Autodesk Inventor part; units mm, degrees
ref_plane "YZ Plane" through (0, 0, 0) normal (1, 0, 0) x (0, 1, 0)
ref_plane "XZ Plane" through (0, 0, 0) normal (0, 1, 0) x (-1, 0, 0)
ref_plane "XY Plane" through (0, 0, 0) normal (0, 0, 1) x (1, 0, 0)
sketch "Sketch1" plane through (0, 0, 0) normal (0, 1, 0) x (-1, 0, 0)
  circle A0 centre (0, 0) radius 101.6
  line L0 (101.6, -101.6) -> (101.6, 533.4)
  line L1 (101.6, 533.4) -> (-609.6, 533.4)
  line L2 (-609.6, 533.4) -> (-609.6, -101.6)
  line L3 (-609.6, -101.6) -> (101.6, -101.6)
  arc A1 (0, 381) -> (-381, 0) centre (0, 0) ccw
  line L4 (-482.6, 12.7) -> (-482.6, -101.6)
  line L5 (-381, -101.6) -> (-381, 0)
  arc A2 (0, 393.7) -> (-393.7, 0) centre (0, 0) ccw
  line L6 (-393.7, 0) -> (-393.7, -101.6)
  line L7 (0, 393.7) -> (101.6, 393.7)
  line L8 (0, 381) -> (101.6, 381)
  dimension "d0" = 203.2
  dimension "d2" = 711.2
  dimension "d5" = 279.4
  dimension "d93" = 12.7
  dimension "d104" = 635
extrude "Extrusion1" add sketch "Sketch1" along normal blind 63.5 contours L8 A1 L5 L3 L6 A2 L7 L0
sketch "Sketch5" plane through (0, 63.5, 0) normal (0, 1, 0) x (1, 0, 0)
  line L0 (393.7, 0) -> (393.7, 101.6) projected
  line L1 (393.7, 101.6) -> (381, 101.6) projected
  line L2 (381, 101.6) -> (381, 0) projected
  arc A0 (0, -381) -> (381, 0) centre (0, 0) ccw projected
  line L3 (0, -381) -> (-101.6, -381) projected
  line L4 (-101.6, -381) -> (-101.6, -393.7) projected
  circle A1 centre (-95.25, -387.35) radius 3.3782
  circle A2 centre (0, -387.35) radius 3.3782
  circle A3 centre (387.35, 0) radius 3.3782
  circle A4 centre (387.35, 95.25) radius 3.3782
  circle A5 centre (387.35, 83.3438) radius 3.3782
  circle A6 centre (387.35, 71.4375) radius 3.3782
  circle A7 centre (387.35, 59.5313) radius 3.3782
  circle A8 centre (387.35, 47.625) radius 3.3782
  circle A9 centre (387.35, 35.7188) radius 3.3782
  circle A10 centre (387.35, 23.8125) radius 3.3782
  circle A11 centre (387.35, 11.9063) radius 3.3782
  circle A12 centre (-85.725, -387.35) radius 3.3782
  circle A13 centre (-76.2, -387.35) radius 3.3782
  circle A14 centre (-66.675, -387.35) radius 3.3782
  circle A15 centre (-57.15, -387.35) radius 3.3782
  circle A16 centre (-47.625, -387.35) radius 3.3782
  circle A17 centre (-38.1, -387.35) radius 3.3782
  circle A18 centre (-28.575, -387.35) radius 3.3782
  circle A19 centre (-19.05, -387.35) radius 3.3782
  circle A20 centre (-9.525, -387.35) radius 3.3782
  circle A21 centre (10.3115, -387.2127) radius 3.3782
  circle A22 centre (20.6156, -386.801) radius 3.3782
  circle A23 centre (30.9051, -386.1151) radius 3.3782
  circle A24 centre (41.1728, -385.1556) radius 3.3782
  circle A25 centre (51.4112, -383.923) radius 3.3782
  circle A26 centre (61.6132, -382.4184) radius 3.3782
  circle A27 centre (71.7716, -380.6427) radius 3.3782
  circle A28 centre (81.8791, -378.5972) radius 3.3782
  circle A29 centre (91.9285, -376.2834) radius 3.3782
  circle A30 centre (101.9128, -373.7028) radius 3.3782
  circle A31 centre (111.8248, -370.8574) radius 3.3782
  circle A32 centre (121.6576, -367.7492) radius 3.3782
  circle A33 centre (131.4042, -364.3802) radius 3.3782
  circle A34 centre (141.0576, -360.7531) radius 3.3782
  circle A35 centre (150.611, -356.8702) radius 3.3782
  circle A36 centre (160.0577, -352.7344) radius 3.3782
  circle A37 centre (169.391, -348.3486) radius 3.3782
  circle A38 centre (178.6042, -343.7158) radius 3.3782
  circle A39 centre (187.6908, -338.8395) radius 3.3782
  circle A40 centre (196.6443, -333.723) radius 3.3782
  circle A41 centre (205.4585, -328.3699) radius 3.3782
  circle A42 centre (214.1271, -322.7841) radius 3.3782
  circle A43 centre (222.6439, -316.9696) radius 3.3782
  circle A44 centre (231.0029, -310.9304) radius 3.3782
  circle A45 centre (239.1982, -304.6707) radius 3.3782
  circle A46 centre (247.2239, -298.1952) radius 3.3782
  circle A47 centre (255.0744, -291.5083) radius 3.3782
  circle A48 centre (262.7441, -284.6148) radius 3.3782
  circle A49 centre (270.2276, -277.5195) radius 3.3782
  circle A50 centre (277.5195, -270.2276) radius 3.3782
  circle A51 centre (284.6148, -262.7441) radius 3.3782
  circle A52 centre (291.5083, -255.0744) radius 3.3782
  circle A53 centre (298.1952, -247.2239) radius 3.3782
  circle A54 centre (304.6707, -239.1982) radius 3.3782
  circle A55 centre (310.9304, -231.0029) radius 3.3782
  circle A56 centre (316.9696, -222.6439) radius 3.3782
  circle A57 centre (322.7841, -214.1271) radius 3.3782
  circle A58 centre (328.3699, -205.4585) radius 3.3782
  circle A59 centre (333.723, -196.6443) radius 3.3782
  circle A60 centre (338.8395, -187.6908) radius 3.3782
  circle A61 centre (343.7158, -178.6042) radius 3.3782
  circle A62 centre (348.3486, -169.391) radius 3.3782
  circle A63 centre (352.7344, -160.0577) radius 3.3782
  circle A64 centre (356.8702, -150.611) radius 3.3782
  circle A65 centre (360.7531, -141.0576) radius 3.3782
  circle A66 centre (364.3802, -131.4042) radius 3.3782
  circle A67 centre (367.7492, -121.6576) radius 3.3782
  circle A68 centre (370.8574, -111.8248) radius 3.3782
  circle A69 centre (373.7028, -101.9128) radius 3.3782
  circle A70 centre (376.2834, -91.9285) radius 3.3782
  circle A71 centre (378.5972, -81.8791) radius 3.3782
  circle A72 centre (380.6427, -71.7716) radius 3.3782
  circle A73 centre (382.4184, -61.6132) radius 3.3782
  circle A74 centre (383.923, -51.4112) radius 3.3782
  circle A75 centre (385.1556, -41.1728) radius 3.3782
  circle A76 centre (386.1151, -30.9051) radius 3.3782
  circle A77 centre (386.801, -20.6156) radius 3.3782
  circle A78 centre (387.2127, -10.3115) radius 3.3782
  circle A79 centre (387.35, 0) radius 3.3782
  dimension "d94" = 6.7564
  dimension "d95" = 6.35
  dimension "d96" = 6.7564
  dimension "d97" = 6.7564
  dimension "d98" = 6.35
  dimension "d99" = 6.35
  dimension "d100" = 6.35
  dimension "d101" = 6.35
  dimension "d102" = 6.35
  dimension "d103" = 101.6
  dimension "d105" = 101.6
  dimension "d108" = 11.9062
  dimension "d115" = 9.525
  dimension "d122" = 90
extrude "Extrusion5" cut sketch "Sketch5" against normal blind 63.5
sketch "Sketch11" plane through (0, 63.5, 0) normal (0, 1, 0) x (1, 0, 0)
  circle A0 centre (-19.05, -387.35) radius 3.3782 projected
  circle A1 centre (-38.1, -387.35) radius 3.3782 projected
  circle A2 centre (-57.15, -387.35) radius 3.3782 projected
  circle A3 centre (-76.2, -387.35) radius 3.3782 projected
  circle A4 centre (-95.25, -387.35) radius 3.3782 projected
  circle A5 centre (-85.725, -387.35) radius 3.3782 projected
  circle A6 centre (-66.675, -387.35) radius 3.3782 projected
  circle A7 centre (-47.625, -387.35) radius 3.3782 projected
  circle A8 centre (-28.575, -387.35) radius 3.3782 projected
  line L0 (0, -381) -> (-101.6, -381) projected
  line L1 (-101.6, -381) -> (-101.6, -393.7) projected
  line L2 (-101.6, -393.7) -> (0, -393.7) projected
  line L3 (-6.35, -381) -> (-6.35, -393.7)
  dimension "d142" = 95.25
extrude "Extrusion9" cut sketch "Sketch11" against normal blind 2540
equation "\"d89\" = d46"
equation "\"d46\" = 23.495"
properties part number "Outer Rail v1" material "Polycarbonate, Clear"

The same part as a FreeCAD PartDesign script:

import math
import FreeCAD as App
import Part
import Sketcher

V = App.Vector
Q = App.Units.Quantity

doc = App.newDocument("Part")
body = doc.addObject("PartDesign::Body", "Body")

sketch1 = doc.addObject("Sketcher::SketchObject", "Sketch")
body.addObject(sketch1)
sketch1.AttachmentSupport = (doc.XZ_Plane, [""])
sketch1.MapMode = "FlatFace"
sketch1.addGeometry([
    Part.LineSegment(V(0, 381, 0), V(-102, 381, 0)),
    Part.LineSegment(V(-102, 381, 0), V(-102, 394, 0)),
    Part.LineSegment(V(-102, 394, 0), V(0, 394, 0)),
    Part.ArcOfCircle(Part.Circle(V(0, 0, 0), V(0, 0, 1), 394), math.radians(0), math.radians(90)),
    Part.LineSegment(V(394, 0, 0), V(394, -102, 0)),
    Part.LineSegment(V(394, -102, 0), V(381, -102, 0)),
    Part.LineSegment(V(381, -102, 0), V(381, 0, 0)),
    Part.ArcOfCircle(Part.Circle(V(0, 0, 0), V(0, 0, 1), 381), math.radians(0), math.radians(90)),
], False)
sketch1.addConstraint([
    Sketcher.Constraint("Coincident", 0, 2, 1, 1),
    Sketcher.Constraint("Coincident", 1, 2, 2, 1),
    Sketcher.Constraint("Tangent", 2, 2, 3, 2),
    Sketcher.Constraint("Tangent", 3, 1, 4, 1),
    Sketcher.Constraint("Coincident", 4, 2, 5, 1),
    Sketcher.Constraint("Coincident", 5, 2, 6, 1),
    Sketcher.Constraint("Tangent", 6, 2, 7, 1),
    Sketcher.Constraint("Tangent", 7, 2, 0, 1),
    Sketcher.Constraint("Horizontal", 0),
    Sketcher.Constraint("Vertical", 1),
    Sketcher.Constraint("Horizontal", 2),
    Sketcher.Constraint("Vertical", 4),
    Sketcher.Constraint("Horizontal", 5),
    Sketcher.Constraint("Vertical", 6),
    Sketcher.Constraint("Coincident", 3, 3, -1, 1),
    Sketcher.Constraint("Coincident", 7, 3, -1, 1),
    Sketcher.Constraint("Equal", 2, 4),
    Sketcher.Constraint("DistanceX", 5, 2, 5, 1, Q("0.5 in")),
    Sketcher.Constraint("Radius", 7, Q("15 in")),
    Sketcher.Constraint("DistanceX", 0, 2, 0, 1, Q("4 in")),
])
pad1 = doc.addObject("PartDesign::Pad", "Pad")
body.addObject(pad1)
pad1.Profile = sketch1
pad1.Length = Q("2.5 in")
pad1.Reversed = True

sketch2 = doc.addObject("Sketcher::SketchObject", "Sketch001")
body.addObject(sketch2)
sketch2.AttachmentSupport = (doc.XZ_Plane, [""])
sketch2.MapMode = "FlatFace"
sketch2.AttachmentOffset = App.Placement(V(0, 0, -2.5 * 25.4), App.Rotation())
sketch2.addGeometry([
    Part.Circle(V(-95.2, 387.4, 0), V(0, 0, 1), 3.4),
    Part.Circle(V(0, 387.4, 0), V(0, 0, 1), 3.4),
    Part.Circle(V(387.4, 0, 0), V(0, 0, 1), 3.4),
    Part.Circle(V(387.4, -95.2, 0), V(0, 0, 1), 3.4),
    Part.Circle(V(387.4, -83.3, 0), V(0, 0, 1), 3.4),
    Part.Circle(V(387.4, -71.4, 0), V(0, 0, 1), 3.4),
    Part.Circle(V(387.4, -59.5, 0), V(0, 0, 1), 3.4),
    Part.Circle(V(387.4, -47.6, 0), V(0, 0, 1), 3.4),
    Part.Circle(V(387.4, -35.7, 0), V(0, 0, 1), 3.4),
    Part.Circle(V(387.4, -23.8, 0), V(0, 0, 1), 3.4),
    Part.Circle(V(387.4, -11.9, 0), V(0, 0, 1), 3.4),
    Part.Circle(V(-85.7, 387.4, 0), V(0, 0, 1), 3.4),
    Part.Circle(V(-76.2, 387.4, 0), V(0, 0, 1), 3.4),
    Part.Circle(V(-66.7, 387.4, 0), V(0, 0, 1), 3.4),
    Part.Circle(V(-57.1, 387.4, 0), V(0, 0, 1), 3.4),
    Part.Circle(V(-47.6, 387.4, 0), V(0, 0, 1), 3.4),
    Part.Circle(V(-38.1, 387.4, 0), V(0, 0, 1), 3.4),
    Part.Circle(V(-28.6, 387.4, 0), V(0, 0, 1), 3.4),
    Part.Circle(V(-19.1, 387.4, 0), V(0, 0, 1), 3.4),
    Part.Circle(V(-9.5, 387.4, 0), V(0, 0, 1), 3.4),
    Part.Circle(V(10.3, 387.2, 0), V(0, 0, 1), 3.4),
    Part.Circle(V(20.6, 386.8, 0), V(0, 0, 1), 3.4),
    Part.Circle(V(30.9, 386.1, 0), V(0, 0, 1), 3.4),
    Part.Circle(V(41.2, 385.2, 0), V(0, 0, 1), 3.4),
    Part.Circle(V(51.4, 383.9, 0), V(0, 0, 1), 3.4),
    Part.Circle(V(61.6, 382.4, 0), V(0, 0, 1), 3.4),
    Part.Circle(V(71.8, 380.6, 0), V(0, 0, 1), 3.4),
    Part.Circle(V(81.9, 378.6, 0), V(0, 0, 1), 3.4),
    Part.Circle(V(91.9, 376.3, 0), V(0, 0, 1), 3.4),
    Part.Circle(V(101.9, 373.7, 0), V(0, 0, 1), 3.4),
    Part.Circle(V(111.8, 370.9, 0), V(0, 0, 1), 3.4),
    Part.Circle(V(121.7, 367.7, 0), V(0, 0, 1), 3.4),
    Part.Circle(V(131.4, 364.4, 0), V(0, 0, 1), 3.4),
    Part.Circle(V(141.1, 360.8, 0), V(0, 0, 1), 3.4),
    Part.Circle(V(150.6, 356.9, 0), V(0, 0, 1), 3.4),
    Part.Circle(V(160.1, 352.7, 0), V(0, 0, 1), 3.4),
    Part.Circle(V(169.4, 348.3, 0), V(0, 0, 1), 3.4),
    Part.Circle(V(178.6, 343.7, 0), V(0, 0, 1), 3.4),
    Part.Circle(V(187.7, 338.8, 0), V(0, 0, 1), 3.4),
    Part.Circle(V(196.6, 333.7, 0), V(0, 0, 1), 3.4),
    Part.Circle(V(205.5, 328.4, 0), V(0, 0, 1), 3.4),
    Part.Circle(V(214.1, 322.8, 0), V(0, 0, 1), 3.4),
    Part.Circle(V(222.6, 317, 0), V(0, 0, 1), 3.4),
    Part.Circle(V(231, 310.9, 0), V(0, 0, 1), 3.4),
    Part.Circle(V(239.2, 304.7, 0), V(0, 0, 1), 3.4),
    Part.Circle(V(247.2, 298.2, 0), V(0, 0, 1), 3.4),
    Part.Circle(V(255.1, 291.5, 0), V(0, 0, 1), 3.4),
    Part.Circle(V(262.7, 284.6, 0), V(0, 0, 1), 3.4),
    Part.Circle(V(270.2, 277.5, 0), V(0, 0, 1), 3.4),
    Part.Circle(V(277.5, 270.2, 0), V(0, 0, 1), 3.4),
    Part.Circle(V(284.6, 262.7, 0), V(0, 0, 1), 3.4),
    Part.Circle(V(291.5, 255.1, 0), V(0, 0, 1), 3.4),
    Part.Circle(V(298.2, 247.2, 0), V(0, 0, 1), 3.4),
    Part.Circle(V(304.7, 239.2, 0), V(0, 0, 1), 3.4),
    Part.Circle(V(310.9, 231, 0), V(0, 0, 1), 3.4),
    Part.Circle(V(317, 222.6, 0), V(0, 0, 1), 3.4),
    Part.Circle(V(322.8, 214.1, 0), V(0, 0, 1), 3.4),
    Part.Circle(V(328.4, 205.5, 0), V(0, 0, 1), 3.4),
    Part.Circle(V(333.7, 196.6, 0), V(0, 0, 1), 3.4),
    Part.Circle(V(338.8, 187.7, 0), V(0, 0, 1), 3.4),
    Part.Circle(V(343.7, 178.6, 0), V(0, 0, 1), 3.4),
    Part.Circle(V(348.3, 169.4, 0), V(0, 0, 1), 3.4),
    Part.Circle(V(352.7, 160.1, 0), V(0, 0, 1), 3.4),
    Part.Circle(V(356.9, 150.6, 0), V(0, 0, 1), 3.4),
    Part.Circle(V(360.8, 141.1, 0), V(0, 0, 1), 3.4),
    Part.Circle(V(364.4, 131.4, 0), V(0, 0, 1), 3.4),
    Part.Circle(V(367.7, 121.7, 0), V(0, 0, 1), 3.4),
    Part.Circle(V(370.9, 111.8, 0), V(0, 0, 1), 3.4),
    Part.Circle(V(373.7, 101.9, 0), V(0, 0, 1), 3.4),
    Part.Circle(V(376.3, 91.9, 0), V(0, 0, 1), 3.4),
    Part.Circle(V(378.6, 81.9, 0), V(0, 0, 1), 3.4),
    Part.Circle(V(380.6, 71.8, 0), V(0, 0, 1), 3.4),
    Part.Circle(V(382.4, 61.6, 0), V(0, 0, 1), 3.4),
    Part.Circle(V(383.9, 51.4, 0), V(0, 0, 1), 3.4),
    Part.Circle(V(385.2, 41.2, 0), V(0, 0, 1), 3.4),
    Part.Circle(V(386.1, 30.9, 0), V(0, 0, 1), 3.4),
    Part.Circle(V(386.8, 20.6, 0), V(0, 0, 1), 3.4),
    Part.Circle(V(387.2, 10.3, 0), V(0, 0, 1), 3.4),
], False)
sketch2.addConstraint([
    Sketcher.Constraint("Equal", 0, 1),
    Sketcher.Constraint("Equal", 1, 2),
    Sketcher.Constraint("Equal", 2, 3),
    Sketcher.Constraint("Equal", 3, 4),
    Sketcher.Constraint("Equal", 4, 5),
    Sketcher.Constraint("Equal", 5, 6),
    Sketcher.Constraint("Equal", 6, 7),
    Sketcher.Constraint("Equal", 7, 8),
    Sketcher.Constraint("Equal", 8, 9),
    Sketcher.Constraint("Equal", 9, 10),
    Sketcher.Constraint("Equal", 10, 11),
    Sketcher.Constraint("Equal", 11, 12),
    Sketcher.Constraint("Equal", 12, 13),
    Sketcher.Constraint("Equal", 13, 14),
    Sketcher.Constraint("Equal", 14, 15),
    Sketcher.Constraint("Equal", 15, 16),
    Sketcher.Constraint("Equal", 16, 17),
    Sketcher.Constraint("Equal", 17, 18),
    Sketcher.Constraint("Equal", 18, 19),
    Sketcher.Constraint("Equal", 19, 20),
    Sketcher.Constraint("Equal", 20, 21),
    Sketcher.Constraint("Equal", 21, 22),
    Sketcher.Constraint("Equal", 22, 23),
    Sketcher.Constraint("Equal", 23, 24),
    Sketcher.Constraint("Equal", 24, 25),
    Sketcher.Constraint("Equal", 25, 26),
    Sketcher.Constraint("Equal", 26, 27),
    Sketcher.Constraint("Equal", 27, 28),
    Sketcher.Constraint("Equal", 28, 29),
    Sketcher.Constraint("Equal", 29, 30),
    Sketcher.Constraint("Equal", 30, 31),
    Sketcher.Constraint("Equal", 31, 32),
    Sketcher.Constraint("Equal", 32, 33),
    Sketcher.Constraint("Equal", 33, 34),
    Sketcher.Constraint("Equal", 34, 35),
    Sketcher.Constraint("Equal", 35, 36),
    Sketcher.Constraint("Equal", 36, 37),
    Sketcher.Constraint("Equal", 37, 38),
    Sketcher.Constraint("Equal", 38, 39),
    Sketcher.Constraint("Equal", 39, 40),
    Sketcher.Constraint("Equal", 40, 41),
    Sketcher.Constraint("Equal", 41, 42),
    Sketcher.Constraint("Equal", 42, 43),
    Sketcher.Constraint("Equal", 43, 44),
    Sketcher.Constraint("Equal", 44, 45),
    Sketcher.Constraint("Equal", 45, 46),
    Sketcher.Constraint("Equal", 46, 47),
    Sketcher.Constraint("Equal", 47, 48),
    Sketcher.Constraint("Equal", 48, 49),
    Sketcher.Constraint("Equal", 49, 50),
    Sketcher.Constraint("Equal", 50, 51),
    Sketcher.Constraint("Equal", 51, 52),
    Sketcher.Constraint("Equal", 52, 53),
    Sketcher.Constraint("Equal", 53, 54),
    Sketcher.Constraint("Equal", 54, 55),
    Sketcher.Constraint("Equal", 55, 56),
    Sketcher.Constraint("Equal", 56, 57),
    Sketcher.Constraint("Equal", 57, 58),
    Sketcher.Constraint("Equal", 58, 59),
    Sketcher.Constraint("Equal", 59, 60),
    Sketcher.Constraint("Equal", 60, 61),
    Sketcher.Constraint("Equal", 61, 62),
    Sketcher.Constraint("Equal", 62, 63),
    Sketcher.Constraint("Equal", 63, 64),
    Sketcher.Constraint("Equal", 64, 65),
    Sketcher.Constraint("Equal", 65, 66),
    Sketcher.Constraint("Equal", 66, 67),
    Sketcher.Constraint("Equal", 67, 68),
    Sketcher.Constraint("Equal", 68, 69),
    Sketcher.Constraint("Equal", 69, 70),
    Sketcher.Constraint("Equal", 70, 71),
    Sketcher.Constraint("Equal", 71, 72),
    Sketcher.Constraint("Equal", 72, 73),
    Sketcher.Constraint("Equal", 73, 74),
    Sketcher.Constraint("Equal", 74, 75),
    Sketcher.Constraint("Equal", 75, 76),
    Sketcher.Constraint("Equal", 76, 77),
    Sketcher.Constraint("PointOnObject", 1, 3, -2),
    Sketcher.Constraint("PointOnObject", 2, 3, -1),
    Sketcher.Constraint("Horizontal", 0, 3, 1, 3),
    Sketcher.Constraint("Horizontal", 1, 3, 11, 3),
    Sketcher.Constraint("Horizontal", 11, 3, 12, 3),
    Sketcher.Constraint("Horizontal", 12, 3, 13, 3),
    Sketcher.Constraint("Horizontal", 13, 3, 14, 3),
    Sketcher.Constraint("Horizontal", 14, 3, 15, 3),
    Sketcher.Constraint("Horizontal", 15, 3, 16, 3),
    Sketcher.Constraint("Horizontal", 16, 3, 17, 3),
    Sketcher.Constraint("Horizontal", 17, 3, 18, 3),
    Sketcher.Constraint("Horizontal", 18, 3, 19, 3),
    Sketcher.Constraint("Vertical", 2, 3, 3, 3),
    Sketcher.Constraint("Vertical", 3, 3, 4, 3),
    Sketcher.Constraint("Vertical", 4, 3, 5, 3),
    Sketcher.Constraint("Vertical", 5, 3, 6, 3),
    Sketcher.Constraint("Vertical", 6, 3, 7, 3),
    Sketcher.Constraint("Vertical", 7, 3, 8, 3),
    Sketcher.Constraint("Vertical", 8, 3, 9, 3),
    Sketcher.Constraint("Vertical", 9, 3, 10, 3),
    Sketcher.Constraint("Diameter", 0, Q("0.266 in")),
    Sketcher.Constraint("DistanceY", 10, 3, -1, 1, Q("0.468752 in")),
    Sketcher.Constraint("DistanceX", 12, 3, -1, 1, Q("3 in")),
    Sketcher.Constraint("DistanceX", 19, 3, -1, 1, Q("0.375 in")),
    Sketcher.Constraint("DistanceX", 16, 3, -1, 1, Q("1.5 in")),
    Sketcher.Constraint("DistanceX", 0, 3, -1, 1, Q("3.75 in")),
    Sketcher.Constraint("DistanceY", -1, 1, 0, 3, Q("15.25 in")),
    Sketcher.Constraint("DistanceX", -1, 1, 2, 3, Q("15.25 in")),
    Sketcher.Constraint("DistanceY", 3, 3, -1, 1, Q("3.75 in")),
    Sketcher.Constraint("DistanceX", 14, 3, -1, 1, Q("2.25 in")),
    Sketcher.Constraint("DistanceX", 18, 3, -1, 1, Q("0.75 in")),
    Sketcher.Constraint("DistanceY", -1, 1, 34, 3, Q("14.05 in")),
    Sketcher.Constraint("DistanceX", -1, 1, 63, 3, Q("14.05 in")),
    Sketcher.Constraint("DistanceY", 4, 3, -1, 1, Q("3.281252 in")),
    Sketcher.Constraint("DistanceY", 5, 3, -1, 1, Q("2.8125 in")),
    Sketcher.Constraint("DistanceY", 6, 3, -1, 1, Q("2.343752 in")),
    Sketcher.Constraint("DistanceY", 7, 3, -1, 1, Q("1.875 in")),
    Sketcher.Constraint("DistanceY", 8, 3, -1, 1, Q("1.406252 in")),
    Sketcher.Constraint("DistanceY", 9, 3, -1, 1, Q("0.9375 in")),
    Sketcher.Constraint("DistanceX", 11, 3, -1, 1, Q("3.375 in")),
    Sketcher.Constraint("DistanceX", 13, 3, -1, 1, Q("2.625 in")),
    Sketcher.Constraint("DistanceX", 15, 3, -1, 1, Q("1.875 in")),
    Sketcher.Constraint("DistanceX", 17, 3, -1, 1, Q("1.125 in")),
    Sketcher.Constraint("DistanceY", -1, 1, 20, 3, Q("15.2446 in")),
    Sketcher.Constraint("DistanceY", -1, 1, 23, 3, Q("15.1636 in")),
    Sketcher.Constraint("DistanceY", -1, 1, 27, 3, Q("14.9054 in")),
    Sketcher.Constraint("DistanceY", -1, 1, 28, 3, Q("14.8143 in")),
    Sketcher.Constraint("DistanceY", -1, 1, 29, 3, Q("14.7127 in")),
    Sketcher.Constraint("DistanceX", -1, 1, 32, 3, Q("5.1734 in")),
    Sketcher.Constraint("DistanceY", -1, 1, 36, 3, Q("13.7145 in")),
    Sketcher.Constraint("DistanceX", -1, 1, 38, 3, Q("7.3894 in")),
    Sketcher.Constraint("DistanceX", -1, 1, 39, 3, Q("7.7419 in")),
    Sketcher.Constraint("DistanceY", -1, 1, 39, 3, Q("13.1387 in")),
    Sketcher.Constraint("DistanceX", -1, 1, 41, 3, Q("8.4302 in")),
    Sketcher.Constraint("DistanceX", -1, 1, 42, 3, Q("8.7655 in")),
    Sketcher.Constraint("DistanceX", -1, 1, 43, 3, Q("9.0946 in")),
    Sketcher.Constraint("DistanceY", -1, 1, 44, 3, Q("11.9949 in")),
    Sketcher.Constraint("DistanceX", -1, 1, 46, 3, Q("10.0423 in")),
    Sketcher.Constraint("DistanceY", -1, 1, 46, 3, Q("11.4767 in")),
    Sketcher.Constraint("DistanceY", -1, 1, 47, 3, Q("11.2053 in")),
    Sketcher.Constraint("DistanceX", -1, 1, 50, 3, Q("11.2053 in")),
    Sketcher.Constraint("DistanceX", -1, 1, 51, 3, Q("11.4767 in")),
    Sketcher.Constraint("DistanceY", -1, 1, 51, 3, Q("10.0423 in")),
    Sketcher.Constraint("DistanceX", -1, 1, 53, 3, Q("11.9949 in")),
    Sketcher.Constraint("DistanceY", -1, 1, 54, 3, Q("9.0946 in")),
    Sketcher.Constraint("DistanceY", -1, 1, 55, 3, Q("8.7655 in")),
    Sketcher.Constraint("DistanceY", -1, 1, 56, 3, Q("8.4302 in")),
    Sketcher.Constraint("DistanceX", -1, 1, 58, 3, Q("13.1387 in")),
    Sketcher.Constraint("DistanceY", -1, 1, 58, 3, Q("7.7419 in")),
    Sketcher.Constraint("DistanceY", -1, 1, 59, 3, Q("7.3894 in")),
    Sketcher.Constraint("DistanceX", -1, 1, 61, 3, Q("13.7145 in")),
    Sketcher.Constraint("DistanceY", -1, 1, 65, 3, Q("5.1734 in")),
    Sketcher.Constraint("DistanceX", -1, 1, 68, 3, Q("14.7127 in")),
    Sketcher.Constraint("DistanceX", -1, 1, 69, 3, Q("14.8143 in")),
    Sketcher.Constraint("DistanceX", -1, 1, 70, 3, Q("14.9054 in")),
    Sketcher.Constraint("DistanceX", -1, 1, 74, 3, Q("15.1636 in")),
    Sketcher.Constraint("DistanceX", -1, 1, 77, 3, Q("15.2446 in")),
    Sketcher.Constraint("DistanceX", -1, 1, 20, 3, 10.3115),
    Sketcher.Constraint("DistanceX", -1, 1, 21, 3, 20.6156),
    Sketcher.Constraint("DistanceY", -1, 1, 21, 3, 386.801),
    Sketcher.Constraint("DistanceX", -1, 1, 22, 3, 30.905),
    Sketcher.Constraint("DistanceY", -1, 1, 22, 3, 386.115),
    Sketcher.Constraint("DistanceX", -1, 1, 23, 3, 41.1728),
    Sketcher.Constraint("DistanceX", -1, 1, 24, 3, 51.4112),
    Sketcher.Constraint("DistanceY", -1, 1, 24, 3, 383.923),
    Sketcher.Constraint("DistanceX", -1, 1, 25, 3, 61.6132),
    Sketcher.Constraint("DistanceY", -1, 1, 25, 3, 382.4184),
    Sketcher.Constraint("DistanceX", -1, 1, 26, 3, 71.7716),
    Sketcher.Constraint("DistanceY", -1, 1, 26, 3, 380.6427),
    Sketcher.Constraint("DistanceX", -1, 1, 27, 3, 81.879),
    Sketcher.Constraint("DistanceX", -1, 1, 28, 3, 91.9285),
    Sketcher.Constraint("DistanceX", -1, 1, 29, 3, 101.9128),
    Sketcher.Constraint("DistanceX", -1, 1, 30, 3, 111.8248),
    Sketcher.Constraint("DistanceY", -1, 1, 30, 3, 370.8574),
    Sketcher.Constraint("DistanceX", -1, 1, 31, 3, 121.6576),
    Sketcher.Constraint("DistanceY", -1, 1, 31, 3, 367.7492),
    Sketcher.Constraint("DistanceY", -1, 1, 32, 3, 364.3802),
    Sketcher.Constraint("DistanceX", -1, 1, 33, 3, 141.0576),
    Sketcher.Constraint("DistanceY", -1, 1, 33, 3, 360.753),
    Sketcher.Constraint("DistanceX", -1, 1, 34, 3, 150.611),
    Sketcher.Constraint("DistanceX", -1, 1, 35, 3, 160.0577),
    Sketcher.Constraint("DistanceY", -1, 1, 35, 3, 352.7344),
    Sketcher.Constraint("DistanceX", -1, 1, 36, 3, 169.391),
    Sketcher.Constraint("DistanceX", -1, 1, 37, 3, 178.6042),
    Sketcher.Constraint("DistanceY", -1, 1, 37, 3, 343.7158),
    Sketcher.Constraint("DistanceY", -1, 1, 38, 3, 338.8395),
    Sketcher.Constraint("DistanceX", -1, 1, 40, 3, 205.4585),
    Sketcher.Constraint("DistanceY", -1, 1, 40, 3, 328.37),
    Sketcher.Constraint("DistanceY", -1, 1, 41, 3, 322.784),
    Sketcher.Constraint("DistanceY", -1, 1, 42, 3, 316.9696),
    Sketcher.Constraint("DistanceY", -1, 1, 43, 3, 310.9304),
    Sketcher.Constraint("DistanceX", -1, 1, 44, 3, 239.1982),
    Sketcher.Constraint("DistanceX", -1, 1, 45, 3, 247.224),
    Sketcher.Constraint("DistanceY", -1, 1, 45, 3, 298.1952),
    Sketcher.Constraint("DistanceX", -1, 1, 47, 3, 262.744),
    Sketcher.Constraint("DistanceX", -1, 1, 48, 3, 270.2276),
    Sketcher.Constraint("DistanceY", -1, 1, 48, 3, 277.5195),
    Sketcher.Constraint("DistanceX", -1, 1, 49, 3, 277.5195),
    Sketcher.Constraint("DistanceY", -1, 1, 49, 3, 270.2276),
    Sketcher.Constraint("DistanceY", -1, 1, 50, 3, 262.744),
    Sketcher.Constraint("DistanceX", -1, 1, 52, 3, 298.1952),
    Sketcher.Constraint("DistanceY", -1, 1, 52, 3, 247.224),
    Sketcher.Constraint("DistanceY", -1, 1, 53, 3, 239.1982),
    Sketcher.Constraint("DistanceX", -1, 1, 54, 3, 310.9304),
    Sketcher.Constraint("DistanceX", -1, 1, 55, 3, 316.9696),
    Sketcher.Constraint("DistanceX", -1, 1, 56, 3, 322.784),
    Sketcher.Constraint("DistanceX", -1, 1, 57, 3, 328.37),
    Sketcher.Constraint("DistanceY", -1, 1, 57, 3, 205.4585),
    Sketcher.Constraint("DistanceX", -1, 1, 59, 3, 338.8395),
    Sketcher.Constraint("DistanceX", -1, 1, 60, 3, 343.7158),
    Sketcher.Constraint("DistanceY", -1, 1, 60, 3, 178.6042),
    Sketcher.Constraint("DistanceY", -1, 1, 61, 3, 169.391),
    Sketcher.Constraint("DistanceX", -1, 1, 62, 3, 352.7344),
    Sketcher.Constraint("DistanceY", -1, 1, 62, 3, 160.0577),
    Sketcher.Constraint("DistanceY", -1, 1, 63, 3, 150.611),
    Sketcher.Constraint("DistanceX", -1, 1, 64, 3, 360.753),
    Sketcher.Constraint("DistanceY", -1, 1, 64, 3, 141.0576),
    Sketcher.Constraint("DistanceX", -1, 1, 65, 3, 364.3802),
    Sketcher.Constraint("DistanceX", -1, 1, 66, 3, 367.7492),
    Sketcher.Constraint("DistanceY", -1, 1, 66, 3, 121.6576),
    Sketcher.Constraint("DistanceX", -1, 1, 67, 3, 370.8574),
    Sketcher.Constraint("DistanceY", -1, 1, 67, 3, 111.8248),
    Sketcher.Constraint("DistanceY", -1, 1, 68, 3, 101.9128),
    Sketcher.Constraint("DistanceY", -1, 1, 69, 3, 91.9285),
    Sketcher.Constraint("DistanceY", -1, 1, 70, 3, 81.879),
    Sketcher.Constraint("DistanceX", -1, 1, 71, 3, 380.6427),
    Sketcher.Constraint("DistanceY", -1, 1, 71, 3, 71.7716),
    Sketcher.Constraint("DistanceX", -1, 1, 72, 3, 382.4184),
    Sketcher.Constraint("DistanceY", -1, 1, 72, 3, 61.6132),
    Sketcher.Constraint("DistanceX", -1, 1, 73, 3, 383.923),
    Sketcher.Constraint("DistanceY", -1, 1, 73, 3, 51.4112),
    Sketcher.Constraint("DistanceY", -1, 1, 74, 3, 41.1728),
    Sketcher.Constraint("DistanceX", -1, 1, 75, 3, 386.115),
    Sketcher.Constraint("DistanceY", -1, 1, 75, 3, 30.905),
    Sketcher.Constraint("DistanceX", -1, 1, 76, 3, 386.801),
    Sketcher.Constraint("DistanceY", -1, 1, 76, 3, 20.6156),
    Sketcher.Constraint("DistanceY", -1, 1, 77, 3, 10.3115),
])
pocket1 = doc.addObject("PartDesign::Pocket", "Pocket")
body.addObject(pocket1)
pocket1.Profile = sketch2
pocket1.Length = Q("2.5 in")
pocket1.Reversed = True

sketch3 = doc.addObject("Sketcher::SketchObject", "Sketch002")
body.addObject(sketch3)
sketch3.AttachmentSupport = (doc.XZ_Plane, [""])
sketch3.MapMode = "FlatFace"
sketch3.AttachmentOffset = App.Placement(V(0, 0, -2.5 * 25.4), App.Rotation())
sketch3.addGeometry([
    Part.LineSegment(V(-6.3, 393.7, 0), V(-6.3, 381, 0)),
    Part.LineSegment(V(-6.3, 381, 0), V(-101.6, 381, 0)),
    Part.LineSegment(V(-101.6, 381, 0), V(-101.6, 393.7, 0)),
    Part.LineSegment(V(-101.6, 393.7, 0), V(-6.3, 393.7, 0)),
    Part.Circle(V(-95.2, 387.4, 0), V(0, 0, 1), 3.4),
    Part.Circle(V(-85.7, 387.4, 0), V(0, 0, 1), 3.4),
    Part.Circle(V(-76.2, 387.4, 0), V(0, 0, 1), 3.4),
    Part.Circle(V(-66.7, 387.4, 0), V(0, 0, 1), 3.4),
    Part.Circle(V(-57.1, 387.4, 0), V(0, 0, 1), 3.4),
    Part.Circle(V(-47.6, 387.4, 0), V(0, 0, 1), 3.4),
    Part.Circle(V(-38.1, 387.4, 0), V(0, 0, 1), 3.4),
    Part.Circle(V(-28.6, 387.4, 0), V(0, 0, 1), 3.4),
    Part.Circle(V(-19.1, 387.4, 0), V(0, 0, 1), 3.4),
], False)
sketch3.addConstraint([
    Sketcher.Constraint("Coincident", 0, 2, 1, 1),
    Sketcher.Constraint("Coincident", 1, 2, 2, 1),
    Sketcher.Constraint("Coincident", 2, 2, 3, 1),
    Sketcher.Constraint("Coincident", 3, 2, 0, 1),
    Sketcher.Constraint("Vertical", 0),
    Sketcher.Constraint("Horizontal", 1),
    Sketcher.Constraint("Vertical", 2),
    Sketcher.Constraint("Horizontal", 3),
    Sketcher.Constraint("Equal", 4, 5),
    Sketcher.Constraint("Equal", 5, 6),
    Sketcher.Constraint("Equal", 6, 7),
    Sketcher.Constraint("Equal", 7, 8),
    Sketcher.Constraint("Equal", 8, 9),
    Sketcher.Constraint("Equal", 9, 10),
    Sketcher.Constraint("Equal", 10, 11),
    Sketcher.Constraint("Equal", 11, 12),
    Sketcher.Constraint("Horizontal", 4, 3, 5, 3),
    Sketcher.Constraint("Horizontal", 5, 3, 6, 3),
    Sketcher.Constraint("Horizontal", 6, 3, 7, 3),
    Sketcher.Constraint("Horizontal", 7, 3, 8, 3),
    Sketcher.Constraint("Horizontal", 8, 3, 9, 3),
    Sketcher.Constraint("Horizontal", 9, 3, 10, 3),
    Sketcher.Constraint("Horizontal", 10, 3, 11, 3),
    Sketcher.Constraint("Horizontal", 11, 3, 12, 3),
    Sketcher.Constraint("DistanceX", 1, 2, 1, 1, Q("3.75 in")),
    Sketcher.Constraint("DistanceX", 4, 3, -1, 1, Q("3.75 in")),
    Sketcher.Constraint("Diameter", 4, Q("0.266 in")),
    Sketcher.Constraint("DistanceY", 0, 2, 0, 1, Q("0.5 in")),
    Sketcher.Constraint("DistanceX", 6, 3, -1, 1, Q("3 in")),
    Sketcher.Constraint("DistanceY", -1, 1, 0, 2, Q("15 in")),
    Sketcher.Constraint("DistanceX", 1, 2, -1, 1, Q("4 in")),
    Sketcher.Constraint("DistanceX", 8, 3, 0, 2, Q("2 in")),
    Sketcher.Constraint("DistanceX", 10, 3, -1, 1, Q("1.5 in")),
    Sketcher.Constraint("DistanceX", 5, 3, 9, 3, Q("1.5 in")),
    Sketcher.Constraint("DistanceX", 7, 3, 11, 3, Q("1.5 in")),
    Sketcher.Constraint("DistanceX", 8, 3, 12, 3, Q("1.5 in")),
    Sketcher.Constraint("DistanceY", -1, 1, 4, 3, Q("15.25 in")),
    Sketcher.Constraint("DistanceX", 5, 3, 7, 3, Q("0.75 in")),
    Sketcher.Constraint("DistanceX", 5, 3, -1, 1, Q("3.375 in")),
])
pocket2 = doc.addObject("PartDesign::Pocket", "Pocket001")
body.addObject(pocket2)
pocket2.Profile = sketch3
pocket2.Length = Q("100 in")
pocket2.Reversed = True

doc.recompute()
